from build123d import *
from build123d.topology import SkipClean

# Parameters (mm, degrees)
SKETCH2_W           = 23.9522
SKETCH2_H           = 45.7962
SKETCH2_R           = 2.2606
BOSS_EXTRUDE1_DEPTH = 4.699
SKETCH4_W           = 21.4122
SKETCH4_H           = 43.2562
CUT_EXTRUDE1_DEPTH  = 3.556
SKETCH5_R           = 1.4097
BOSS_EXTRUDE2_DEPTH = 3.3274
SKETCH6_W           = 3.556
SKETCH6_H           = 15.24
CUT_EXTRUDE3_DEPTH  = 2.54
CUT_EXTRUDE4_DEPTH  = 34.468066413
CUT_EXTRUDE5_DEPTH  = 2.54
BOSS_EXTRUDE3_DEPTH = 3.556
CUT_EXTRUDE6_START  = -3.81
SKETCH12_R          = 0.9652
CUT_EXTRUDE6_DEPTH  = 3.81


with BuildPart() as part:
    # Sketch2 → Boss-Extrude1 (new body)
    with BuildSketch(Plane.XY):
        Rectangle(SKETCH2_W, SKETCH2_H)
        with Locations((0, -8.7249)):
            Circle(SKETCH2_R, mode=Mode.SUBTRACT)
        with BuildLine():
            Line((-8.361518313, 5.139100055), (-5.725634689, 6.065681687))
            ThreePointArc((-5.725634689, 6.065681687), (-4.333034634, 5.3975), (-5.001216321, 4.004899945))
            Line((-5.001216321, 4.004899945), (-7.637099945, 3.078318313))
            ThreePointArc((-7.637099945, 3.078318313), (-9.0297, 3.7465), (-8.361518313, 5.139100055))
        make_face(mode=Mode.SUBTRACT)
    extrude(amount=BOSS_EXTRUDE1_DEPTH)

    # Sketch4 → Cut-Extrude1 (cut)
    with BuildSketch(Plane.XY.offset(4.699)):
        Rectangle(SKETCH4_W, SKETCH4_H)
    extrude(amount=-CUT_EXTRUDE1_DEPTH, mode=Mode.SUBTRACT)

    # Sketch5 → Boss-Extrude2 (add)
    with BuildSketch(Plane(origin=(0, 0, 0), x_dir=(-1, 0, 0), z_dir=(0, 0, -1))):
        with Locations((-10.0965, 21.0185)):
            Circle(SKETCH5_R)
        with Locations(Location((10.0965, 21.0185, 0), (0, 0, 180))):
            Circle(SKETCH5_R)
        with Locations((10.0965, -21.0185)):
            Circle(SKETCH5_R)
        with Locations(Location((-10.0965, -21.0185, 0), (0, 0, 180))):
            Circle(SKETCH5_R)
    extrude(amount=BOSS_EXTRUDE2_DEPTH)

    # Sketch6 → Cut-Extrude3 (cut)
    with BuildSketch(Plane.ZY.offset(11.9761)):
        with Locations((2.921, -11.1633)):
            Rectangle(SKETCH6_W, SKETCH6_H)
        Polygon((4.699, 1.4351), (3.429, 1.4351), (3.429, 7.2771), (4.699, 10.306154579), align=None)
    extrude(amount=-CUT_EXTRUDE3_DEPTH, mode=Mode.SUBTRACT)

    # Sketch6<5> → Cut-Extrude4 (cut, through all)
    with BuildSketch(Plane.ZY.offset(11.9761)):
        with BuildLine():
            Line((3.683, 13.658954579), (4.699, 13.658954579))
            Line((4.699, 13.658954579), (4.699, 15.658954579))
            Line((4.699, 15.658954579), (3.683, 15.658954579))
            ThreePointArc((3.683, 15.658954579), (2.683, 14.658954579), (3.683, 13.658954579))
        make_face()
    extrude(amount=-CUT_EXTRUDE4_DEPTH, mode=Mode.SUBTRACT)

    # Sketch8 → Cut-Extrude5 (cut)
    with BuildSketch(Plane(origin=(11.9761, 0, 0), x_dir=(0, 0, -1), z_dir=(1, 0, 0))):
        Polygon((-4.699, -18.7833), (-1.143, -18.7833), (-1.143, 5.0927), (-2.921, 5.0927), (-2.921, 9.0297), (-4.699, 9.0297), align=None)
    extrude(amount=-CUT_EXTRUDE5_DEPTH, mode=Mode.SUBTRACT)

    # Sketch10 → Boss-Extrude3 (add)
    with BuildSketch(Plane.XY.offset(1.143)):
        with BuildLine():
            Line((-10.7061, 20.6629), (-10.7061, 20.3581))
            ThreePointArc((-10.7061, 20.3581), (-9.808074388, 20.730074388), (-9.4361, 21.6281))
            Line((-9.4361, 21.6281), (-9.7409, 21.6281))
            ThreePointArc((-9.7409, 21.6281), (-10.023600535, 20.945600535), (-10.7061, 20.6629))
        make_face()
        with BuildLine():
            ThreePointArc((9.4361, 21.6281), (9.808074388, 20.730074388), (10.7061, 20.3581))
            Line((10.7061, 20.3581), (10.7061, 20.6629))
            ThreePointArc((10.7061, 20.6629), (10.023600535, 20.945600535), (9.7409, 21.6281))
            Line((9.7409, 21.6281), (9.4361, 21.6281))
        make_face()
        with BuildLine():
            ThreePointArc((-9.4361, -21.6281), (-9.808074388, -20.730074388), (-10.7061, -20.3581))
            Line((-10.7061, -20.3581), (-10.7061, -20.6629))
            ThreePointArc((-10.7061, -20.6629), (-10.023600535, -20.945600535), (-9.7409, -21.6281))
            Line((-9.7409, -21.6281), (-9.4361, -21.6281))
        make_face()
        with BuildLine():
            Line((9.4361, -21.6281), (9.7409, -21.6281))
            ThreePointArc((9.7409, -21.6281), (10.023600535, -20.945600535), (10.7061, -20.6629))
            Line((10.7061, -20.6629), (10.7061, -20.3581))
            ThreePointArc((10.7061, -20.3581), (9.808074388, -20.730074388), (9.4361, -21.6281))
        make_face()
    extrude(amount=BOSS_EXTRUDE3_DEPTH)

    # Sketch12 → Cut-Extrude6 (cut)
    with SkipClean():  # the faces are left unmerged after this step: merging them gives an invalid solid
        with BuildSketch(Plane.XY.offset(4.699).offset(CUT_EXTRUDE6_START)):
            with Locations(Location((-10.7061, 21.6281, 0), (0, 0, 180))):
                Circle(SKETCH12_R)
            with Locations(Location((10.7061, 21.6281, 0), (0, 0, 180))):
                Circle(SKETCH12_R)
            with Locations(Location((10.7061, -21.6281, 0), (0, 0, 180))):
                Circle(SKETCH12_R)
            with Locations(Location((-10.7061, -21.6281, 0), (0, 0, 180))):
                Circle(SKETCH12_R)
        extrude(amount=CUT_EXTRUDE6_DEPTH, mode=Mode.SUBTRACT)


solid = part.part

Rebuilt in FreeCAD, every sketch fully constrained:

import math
import FreeCAD as App
import Part
import Sketcher

V = App.Vector
Q = App.Units.Quantity

doc = App.newDocument("Part")
body = doc.addObject("PartDesign::Body", "Body")

sketch1 = doc.addObject("Sketcher::SketchObject", "Sketch")
body.addObject(sketch1)
sketch1.AttachmentSupport = (doc.XY_Plane, [""])
sketch1.MapMode = "FlatFace"
sketch1.addGeometry(Part.LineSegment(V(-12, 22.9, 0), V(-12, -22.9, 0)), False)
sketch1.addGeometry(Part.LineSegment(V(-12, -22.9, 0), V(12, -22.9, 0)), False)
sketch1.addGeometry(Part.LineSegment(V(12, -22.9, 0), V(12, 22.9, 0)), False)
sketch1.addGeometry(Part.LineSegment(V(12, 22.9, 0), V(-12, 22.9, 0)), False)
sketch1.addGeometry(Part.Circle(V(0, -8.7, 0), V(0, 0, 1), 2.3), False)
sketch1.addGeometry(Part.ArcOfCircle(Part.Circle(V(-8, 4.1, 0), V(0, 0, 1), 1.1), math.radians(109), math.radians(289)), False)
sketch1.addGeometry(Part.LineSegment(V(-8.4, 5.1, 0), V(-5.7, 6.1, 0)), False)
sketch1.addGeometry(Part.ArcOfCircle(Part.Circle(V(-5.4, 5, 0), V(0, 0, 1), 1.1), math.radians(-71), math.radians(109)), False)
sketch1.addGeometry(Part.LineSegment(V(-5, 4, 0), V(-7.6, 3.1, 0)), False)
sketch1.addConstraint(Sketcher.Constraint("Coincident", 0, 2, 1, 1))
sketch1.addConstraint(Sketcher.Constraint("Coincident", 1, 2, 2, 1))
sketch1.addConstraint(Sketcher.Constraint("Coincident", 2, 2, 3, 1))
sketch1.addConstraint(Sketcher.Constraint("Coincident", 3, 2, 0, 1))
sketch1.addConstraint(Sketcher.Constraint("Tangent", 5, 1, 6, 1))
sketch1.addConstraint(Sketcher.Constraint("Tangent", 6, 2, 7, 2))
sketch1.addConstraint(Sketcher.Constraint("Tangent", 7, 1, 8, 1))
sketch1.addConstraint(Sketcher.Constraint("Tangent", 8, 2, 5, 2))
sketch1.addConstraint(Sketcher.Constraint("Vertical", 0))
sketch1.addConstraint(Sketcher.Constraint("Horizontal", 1))
sketch1.addConstraint(Sketcher.Constraint("Vertical", 2))
sketch1.addConstraint(Sketcher.Constraint("Horizontal", 3))
sketch1.addConstraint(Sketcher.Constraint("Equal", 5, 7))
sketch1.addConstraint(Sketcher.Constraint("Symmetric", 0, 2, 2, 2, -1, 1))
sketch1.addConstraint(Sketcher.Constraint("PointOnObject", 4, 3, -2))
sketch1.addConstraint(Sketcher.Constraint("Diameter", 4, Q("0.178 in")))
sketch1.addConstraint(Sketcher.Constraint("Radius", 5, Q("0.043 in")))
sketch1.addConstraint(Sketcher.Constraint("Distance", 6, Q("0.11 in")))
sketch1.addConstraint(Sketcher.Constraint("DistanceX", 1, 1, 1, 2, Q("0.943 in")))
sketch1.addConstraint(Sketcher.Constraint("DistanceY", 0, 2, 0, 1, Q("1.803 in")))
sketch1.addConstraint(Sketcher.Constraint("DistanceY", 0, 2, 4, 3, Q("0.558 in")))
sketch1.addConstraint(Sketcher.Constraint("DistanceY", -1, 1, 5, 1, Q("5.1391 mm")))
sketch1.addConstraint(Sketcher.Constraint("DistanceY", -1, 1, 7, 1, Q("4.0049 mm")))
sketch1.addConstraint(Sketcher.Constraint("DistanceX", 8, 2, -1, 1, Q("7.6371 mm")))
pad1 = doc.addObject("PartDesign::Pad", "Pad")
body.addObject(pad1)
pad1.Profile = sketch1
pad1.Length = Q("0.185 in")

sketch2 = doc.addObject("Sketcher::SketchObject", "Sketch001")
body.addObject(sketch2)
sketch2.AttachmentSupport = (doc.XY_Plane, [""])
sketch2.MapMode = "FlatFace"
sketch2.AttachmentOffset = App.Placement(V(0, 0, 0.185 * 25.4), App.Rotation())
sketch2.addGeometry(Part.LineSegment(V(-11, 22, 0), V(-11, -22, 0)), False)
sketch2.addGeometry(Part.LineSegment(V(-11, -22, 0), V(11, -22, 0)), False)
sketch2.addGeometry(Part.LineSegment(V(11, -22, 0), V(11, 22, 0)), False)
sketch2.addGeometry(Part.LineSegment(V(11, 22, 0), V(-11, 22, 0)), False)
sketch2.addConstraint(Sketcher.Constraint("Coincident", 0, 2, 1, 1))
sketch2.addConstraint(Sketcher.Constraint("Coincident", 1, 2, 2, 1))
sketch2.addConstraint(Sketcher.Constraint("Coincident", 2, 2, 3, 1))
sketch2.addConstraint(Sketcher.Constraint("Coincident", 3, 2, 0, 1))
sketch2.addConstraint(Sketcher.Constraint("Vertical", 0))
sketch2.addConstraint(Sketcher.Constraint("Horizontal", 1))
sketch2.addConstraint(Sketcher.Constraint("Vertical", 2))
sketch2.addConstraint(Sketcher.Constraint("Horizontal", 3))
sketch2.addConstraint(Sketcher.Constraint("Symmetric", 0, 2, 2, 2, -1, 1))
sketch2.addConstraint(Sketcher.Constraint("DistanceX", 1, 1, 1, 2, Q("0.843 in")))
sketch2.addConstraint(Sketcher.Constraint("DistanceY", 0, 2, 0, 1, Q("1.703 in")))
pocket1 = doc.addObject("PartDesign::Pocket", "Pocket")
body.addObject(pocket1)
pocket1.Profile = sketch2
pocket1.Length = Q("0.14 in")

sketch3 = doc.addObject("Sketcher::SketchObject", "Sketch002")
body.addObject(sketch3)
sketch3.AttachmentSupport = (doc.XY_Plane, [""])
sketch3.MapMode = "FlatFace"
sketch3.addGeometry(Part.Circle(V(10.1, 21, 0), V(0, 0, 1), 1.4), False)
sketch3.addGeometry(Part.Circle(V(-10.1, 21, 0), V(0, 0, 1), 1.4), False)
sketch3.addGeometry(Part.Circle(V(-10.1, -21, 0), V(0, 0, 1), 1.4), False)
sketch3.addGeometry(Part.Circle(V(10.1, -21, 0), V(0, 0, 1), 1.4), False)
sketch3.addConstraint(Sketcher.Constraint("Equal", 0, 1))
sketch3.addConstraint(Sketcher.Constraint("Equal", 1, 2))
sketch3.addConstraint(Sketcher.Constraint("Equal", 2, 3))
sketch3.addConstraint(Sketcher.Constraint("Symmetric", 0, 3, 2, 3, -1, 1))
sketch3.addConstraint(Sketcher.Constraint("Symmetric", 1, 3, 3, 3, -1, 1))
sketch3.addConstraint(Sketcher.Constraint("Symmetric", 0, 3, 1, 3, -2))
sketch3.addConstraint(Sketcher.Constraint("Diameter", 0, Q("0.111 in")))
sketch3.addConstraint(Sketcher.Constraint("DistanceX", 1, 3, 0, 3, Q("0.795 in")))
sketch3.addConstraint(Sketcher.Constraint("DistanceY", 2, 3, 1, 3, Q("1.655 in")))
pad2 = doc.addObject("PartDesign::Pad", "Pad001")
body.addObject(pad2)
pad2.Profile = sketch3
pad2.Length = Q("0.131 in")
pad2.Reversed = True

sketch4 = doc.addObject("Sketcher::SketchObject", "Sketch003")
body.addObject(sketch4)
sketch4.AttachmentSupport = (doc.YZ_Plane, [""])
sketch4.MapMode = "FlatFace"
sketch4.AttachmentOffset = App.Placement(V(0, 0, -0.4715 * 25.4), App.Rotation())
sketch4.addGeometry(Part.LineSegment(V(-3.5, 1.1, 0), V(-18.8, 1.1, 0)), False)
sketch4.addGeometry(Part.LineSegment(V(-18.8, 1.1, 0), V(-18.8, 4.7, 0)), False)
sketch4.addGeometry(Part.LineSegment(V(-18.8, 4.7, 0), V(-3.5, 4.7, 0)), False)
sketch4.addGeometry(Part.LineSegment(V(-3.5, 4.7, 0), V(-3.5, 1.1, 0)), False)
sketch4.addGeometry(Part.LineSegment(V(1.4, 3.4, 0), V(1.4, 4.7, 0)), False)
sketch4.addGeometry(Part.LineSegment(V(1.4, 4.7, 0), V(10.3, 4.7, 0)), False)
sketch4.addGeometry(Part.LineSegment(V(10.3, 4.7, 0), V(7.3, 3.4, 0)), False)
sketch4.addGeometry(Part.LineSegment(V(7.3, 3.4, 0), V(1.4, 3.4, 0)), False)
sketch4.addConstraint(Sketcher.Constraint("Coincident", 0, 2, 1, 1))
sketch4.addConstraint(Sketcher.Constraint("Coincident", 1, 2, 2, 1))
sketch4.addConstraint(Sketcher.Constraint("Coincident", 2, 2, 3, 1))
sketch4.addConstraint(Sketcher.Constraint("Coincident", 3, 2, 0, 1))
sketch4.addConstraint(Sketcher.Constraint("Coincident", 4, 2, 5, 1))
sketch4.addConstraint(Sketcher.Constraint("Coincident", 5, 2, 6, 1))
sketch4.addConstraint(Sketcher.Constraint("Coincident", 6, 2, 7, 1))
sketch4.addConstraint(Sketcher.Constraint("Coincident", 7, 2, 4, 1))
sketch4.addConstraint(Sketcher.Constraint("Horizontal", 0))
sketch4.addConstraint(Sketcher.Constraint("Vertical", 1))
sketch4.addConstraint(Sketcher.Constraint("Horizontal", 2))
sketch4.addConstraint(Sketcher.Constraint("Vertical", 3))
sketch4.addConstraint(Sketcher.Constraint("Vertical", 4))
sketch4.addConstraint(Sketcher.Constraint("Horizontal", 5))
sketch4.addConstraint(Sketcher.Constraint("Horizontal", 7))
sketch4.addConstraint(Sketcher.Constraint("Horizontal", 2, 2, 4, 2))
sketch4.addConstraint(Sketcher.Constraint("DistanceX", 0, 2, 0, 1, Q("0.6 in")))
sketch4.addConstraint(Sketcher.Constraint("DistanceX", 7, 2, 7, 1, Q("0.23 in")))
sketch4.addConstraint(Sketcher.Constraint("DistanceY", 1, 1, 1, 2, Q("0.14 in")))
sketch4.addConstraint(Sketcher.Constraint("DistanceY", 4, 1, 4, 2, Q("0.05 in")))
sketch4.addConstraint(Sketcher.Constraint("DistanceY", -1, 1, 0, 2, Q("0.045 in")))
sketch4.addConstraint(Sketcher.Constraint("DistanceX", 2, 2, 4, 2, Q("0.196 in")))
sketch4.addConstraint(Sketcher.Constraint("DistanceX", 0, 2, -1, 1, Q("0.7395 in")))
sketch4.addConstraint(Sketcher.Constraint("Distance", 6, Q("3.28452 mm")))
pocket2 = doc.addObject("PartDesign::Pocket", "Pocket001")
body.addObject(pocket2)
pocket2.Profile = sketch4
pocket2.Length = Q("0.1 in")
pocket2.Reversed = True

sketch5 = doc.addObject("Sketcher::SketchObject", "Sketch004")
body.addObject(sketch5)
sketch5.AttachmentSupport = (doc.YZ_Plane, [""])
sketch5.MapMode = "FlatFace"
sketch5.AttachmentOffset = App.Placement(V(0, 0, -0.4715 * 25.4), App.Rotation())
sketch5.addGeometry(Part.LineSegment(V(13.7, 3.7, 0), V(13.7, 4.7, 0)), False)
sketch5.addGeometry(Part.LineSegment(V(13.7, 4.7, 0), V(15.7, 4.7, 0)), False)
sketch5.addGeometry(Part.LineSegment(V(15.7, 4.7, 0), V(15.7, 3.7, 0)), False)
sketch5.addGeometry(Part.ArcOfCircle(Part.Circle(V(14.7, 3.7, 0), V(0, 0, 1), 1), math.radians(180), math.radians(360)), False)
sketch5.addConstraint(Sketcher.Constraint("Coincident", 0, 2, 1, 1))
sketch5.addConstraint(Sketcher.Constraint("Coincident", 1, 2, 2, 1))
sketch5.addConstraint(Sketcher.Constraint("Tangent", 2, 2, 3, 2))
sketch5.addConstraint(Sketcher.Constraint("Tangent", 3, 1, 0, 1))
sketch5.addConstraint(Sketcher.Constraint("Vertical", 0))
sketch5.addConstraint(Sketcher.Constraint("Horizontal", 1))
sketch5.addConstraint(Sketcher.Constraint("Vertical", 2))
sketch5.addConstraint(Sketcher.Constraint("DistanceY", 0, 1, 0, 2, Q("0.04 in")))
sketch5.addConstraint(Sketcher.Constraint("Radius", 3, Q("1 mm")))
sketch5.addConstraint(Sketcher.Constraint("DistanceY", -1, 1, 3, 3, Q("0.145 in")))
sketch5.addConstraint(Sketcher.Constraint("DistanceX", -1, 1, 3, 3, Q("14.658955 mm")))
pocket3 = doc.addObject("PartDesign::Pocket", "Pocket002")
body.addObject(pocket3)
pocket3.Profile = sketch5
pocket3.Type = "ThroughAll"
pocket3.Reversed = True

sketch6 = doc.addObject("Sketcher::SketchObject", "Sketch005")
body.addObject(sketch6)
sketch6.AttachmentSupport = (doc.YZ_Plane, [""])
sketch6.MapMode = "FlatFace"
sketch6.AttachmentOffset = App.Placement(V(0, 0, 0.4715 * 25.4), App.Rotation())
sketch6.addGeometry(Part.LineSegment(V(-18.8, 4.7, 0), V(-18.8, 1.1, 0)), False)
sketch6.addGeometry(Part.LineSegment(V(-18.8, 1.1, 0), V(5.1, 1.1, 0)), False)
sketch6.addGeometry(Part.LineSegment(V(5.1, 1.1, 0), V(5.1, 2.9, 0)), False)
sketch6.addGeometry(Part.LineSegment(V(5.1, 2.9, 0), V(9, 2.9, 0)), False)
sketch6.addGeometry(Part.LineSegment(V(9, 2.9, 0), V(9, 4.7, 0)), False)
sketch6.addGeometry(Part.LineSegment(V(9, 4.7, 0), V(-18.8, 4.7, 0)), False)
sketch6.addConstraint(Sketcher.Constraint("Coincident", 0, 2, 1, 1))
sketch6.addConstraint(Sketcher.Constraint("Coincident", 1, 2, 2, 1))
sketch6.addConstraint(Sketcher.Constraint("Coincident", 2, 2, 3, 1))
sketch6.addConstraint(Sketcher.Constraint("Coincident", 3, 2, 4, 1))
sketch6.addConstraint(Sketcher.Constraint("Coincident", 4, 2, 5, 1))
sketch6.addConstraint(Sketcher.Constraint("Coincident", 5, 2, 0, 1))
sketch6.addConstraint(Sketcher.Constraint("Vertical", 0))
sketch6.addConstraint(Sketcher.Constraint("Horizontal", 1))
sketch6.addConstraint(Sketcher.Constraint("Vertical", 2))
sketch6.addConstraint(Sketcher.Constraint("Horizontal", 3))
sketch6.addConstraint(Sketcher.Constraint("Vertical", 4))
sketch6.addConstraint(Sketcher.Constraint("Horizontal", 5))
sketch6.addConstraint(Sketcher.Constraint("Equal", 2, 4))
sketch6.addConstraint(Sketcher.Constraint("DistanceX", 1, 1, 1, 2, Q("0.94 in")))
sketch6.addConstraint(Sketcher.Constraint("DistanceY", 0, 2, 0, 1, Q("0.14 in")))
sketch6.addConstraint(Sketcher.Constraint("DistanceX", 3, 1, 3, 2, Q("0.155 in")))
sketch6.addConstraint(Sketcher.Constraint("DistanceY", -1, 1, 0, 2, Q("0.045 in")))
sketch6.addConstraint(Sketcher.Constraint("DistanceX", 0, 2, -1, 1, Q("0.7395 in")))
pocket4 = doc.addObject("PartDesign::Pocket", "Pocket003")
body.addObject(pocket4)
pocket4.Profile = sketch6
pocket4.Length = Q("0.1 in")

sketch7 = doc.addObject("Sketcher::SketchObject", "Sketch006")
body.addObject(sketch7)
sketch7.AttachmentSupport = (doc.XY_Plane, [""])
sketch7.MapMode = "FlatFace"
sketch7.AttachmentOffset = App.Placement(V(0, 0, 0.045 * 25.4), App.Rotation())
sketch7.addGeometry(Part.LineSegment(V(-10.71, 20.66, 0), V(-10.71, 20.36, 0)), False)
sketch7.addGeometry(Part.ArcOfCircle(Part.Circle(V(-10.71, 21.63, 0), V(0, 0, 1), 1.27), math.radians(-90), math.radians(0)), False)
sketch7.addGeometry(Part.LineSegment(V(-9.44, 21.63, 0), V(-9.74, 21.63, 0)), False)
sketch7.addGeometry(Part.ArcOfCircle(Part.Circle(V(-10.71, 21.63, 0), V(0, 0, 1), 0.97), math.radians(-90), math.radians(0)), False)
sketch7.addGeometry(Part.ArcOfCircle(Part.Circle(V(10.71, 21.63, 0), V(0, 0, 1), 1.27), math.radians(180), math.radians(270)), False)
sketch7.addGeometry(Part.LineSegment(V(10.71, 20.36, 0), V(10.71, 20.66, 0)), False)
sketch7.addGeometry(Part.ArcOfCircle(Part.Circle(V(10.71, 21.63, 0), V(0, 0, 1), 0.97), math.radians(-180), math.radians(-90)), False)
sketch7.addGeometry(Part.LineSegment(V(9.74, 21.63, 0), V(9.44, 21.63, 0)), False)
sketch7.addGeometry(Part.ArcOfCircle(Part.Circle(V(-10.71, -21.63, 0), V(0, 0, 1), 1.27), math.radians(0), math.radians(90)), False)
sketch7.addGeometry(Part.LineSegment(V(-10.71, -20.36, 0), V(-10.71, -20.66, 0)), False)
sketch7.addGeometry(Part.ArcOfCircle(Part.Circle(V(-10.71, -21.63, 0), V(0, 0, 1), 0.97), math.radians(0), math.radians(90)), False)
sketch7.addGeometry(Part.LineSegment(V(-9.74, -21.63, 0), V(-9.44, -21.63, 0)), False)
sketch7.addGeometry(Part.LineSegment(V(9.44, -21.63, 0), V(9.74, -21.63, 0)), False)
sketch7.addGeometry(Part.ArcOfCircle(Part.Circle(V(10.71, -21.63, 0), V(0, 0, 1), 0.97), math.radians(90), math.radians(180)), False)
sketch7.addGeometry(Part.LineSegment(V(10.71, -20.66, 0), V(10.71, -20.36, 0)), False)
sketch7.addGeometry(Part.ArcOfCircle(Part.Circle(V(10.71, -21.63, 0), V(0, 0, 1), 1.27), math.radians(90), math.radians(180)), False)
sketch7.addConstraint(Sketcher.Constraint("Coincident", 0, 2, 1, 1))
sketch7.addConstraint(Sketcher.Constraint("Coincident", 1, 2, 2, 1))
sketch7.addConstraint(Sketcher.Constraint("Coincident", 2, 2, 3, 2))
sketch7.addConstraint(Sketcher.Constraint("Coincident", 3, 1, 0, 1))
sketch7.addConstraint(Sketcher.Constraint("Coincident", 4, 2, 5, 1))
sketch7.addConstraint(Sketcher.Constraint("Coincident", 5, 2, 6, 2))
sketch7.addConstraint(Sketcher.Constraint("Coincident", 6, 1, 7, 1))
sketch7.addConstraint(Sketcher.Constraint("Coincident", 7, 2, 4, 1))
sketch7.addConstraint(Sketcher.Constraint("Coincident", 8, 2, 9, 1))
sketch7.addConstraint(Sketcher.Constraint("Coincident", 9, 2, 10, 2))
sketch7.addConstraint(Sketcher.Constraint("Coincident", 10, 1, 11, 1))
sketch7.addConstraint(Sketcher.Constraint("Coincident", 11, 2, 8, 1))
sketch7.addConstraint(Sketcher.Constraint("Coincident", 12, 2, 13, 2))
sketch7.addConstraint(Sketcher.Constraint("Coincident", 13, 1, 14, 1))
sketch7.addConstraint(Sketcher.Constraint("Coincident", 14, 2, 15, 1))
sketch7.addConstraint(Sketcher.Constraint("Coincident", 15, 2, 12, 1))
sketch7.addConstraint(Sketcher.Constraint("Vertical", 0))
sketch7.addConstraint(Sketcher.Constraint("Horizontal", 2))
sketch7.addConstraint(Sketcher.Constraint("Vertical", 5))
sketch7.addConstraint(Sketcher.Constraint("Horizontal", 7))
sketch7.addConstraint(Sketcher.Constraint("Vertical", 9))
sketch7.addConstraint(Sketcher.Constraint("Horizontal", 11))
sketch7.addConstraint(Sketcher.Constraint("Horizontal", 12))
sketch7.addConstraint(Sketcher.Constraint("Vertical", 14))
sketch7.addConstraint(Sketcher.Constraint("Coincident", 3, 3, 1, 3))
sketch7.addConstraint(Sketcher.Constraint("Coincident", 6, 3, 4, 3))
sketch7.addConstraint(Sketcher.Constraint("Coincident", 10, 3, 8, 3))
sketch7.addConstraint(Sketcher.Constraint("Coincident", 15, 3, 13, 3))
sketch7.addConstraint(Sketcher.Constraint("Equal", 1, 4))
sketch7.addConstraint(Sketcher.Constraint("Equal", 3, 6))
sketch7.addConstraint(Sketcher.Constraint("Equal", 4, 8))
sketch7.addConstraint(Sketcher.Constraint("Equal", 6, 10))
sketch7.addConstraint(Sketcher.Constraint("Equal", 10, 13))
sketch7.addConstraint(Sketcher.Constraint("Equal", 8, 15))
sketch7.addConstraint(Sketcher.Constraint("Symmetric", 4, 3, 8, 3, -1, 1))
sketch7.addConstraint(Sketcher.Constraint("Symmetric", 1, 3, 13, 3, -1, 1))
sketch7.addConstraint(Sketcher.Constraint("Symmetric", 1, 3, 4, 3, -2))
sketch7.addConstraint(Sketcher.Constraint("Horizontal", 6, 3, 1, 2))
sketch7.addConstraint(Sketcher.Constraint("Horizontal", 2, 2, 6, 1))
sketch7.addConstraint(Sketcher.Constraint("Horizontal", 15, 3, 10, 1))
sketch7.addConstraint(Sketcher.Constraint("Horizontal", 11, 2, 12, 2))
sketch7.addConstraint(Sketcher.Constraint("Vertical", 10, 3, 0, 2))
sketch7.addConstraint(Sketcher.Constraint("Vertical", 15, 3, 4, 2))
sketch7.addConstraint(Sketcher.Constraint("Vertical", 3, 1, 8, 2))
sketch7.addConstraint(Sketcher.Constraint("Vertical", 5, 2, 13, 1))
sketch7.addConstraint(Sketcher.Constraint("Radius", 1, Q("0.05 in")))
sketch7.addConstraint(Sketcher.Constraint("Radius", 3, Q("0.038 in")))
sketch7.addConstraint(Sketcher.Constraint("DistanceX", 1, 3, 4, 3, Q("0.843 in")))
sketch7.addConstraint(Sketcher.Constraint("DistanceY", 8, 3, 1, 3, Q("1.703 in")))
pad3 = doc.addObject("PartDesign::Pad", "Pad002")
body.addObject(pad3)
pad3.Profile = sketch7
pad3.Length = Q("0.14 in")

sketch8 = doc.addObject("Sketcher::SketchObject", "Sketch007")
body.addObject(sketch8)
sketch8.AttachmentSupport = (doc.XY_Plane, [""])
sketch8.MapMode = "FlatFace"
sketch8.AttachmentOffset = App.Placement(V(0, 0, 0.035 * 25.4), App.Rotation())
sketch8.addGeometry(Part.Circle(V(-10.7, 21.6, 0), V(0, 0, 1), 1), False)
sketch8.addGeometry(Part.Circle(V(10.7, 21.6, 0), V(0, 0, 1), 1), False)
sketch8.addGeometry(Part.Circle(V(10.7, -21.6, 0), V(0, 0, 1), 1), False)
sketch8.addGeometry(Part.Circle(V(-10.7, -21.6, 0), V(0, 0, 1), 1), False)
sketch8.addConstraint(Sketcher.Constraint("Equal", 0, 1))
sketch8.addConstraint(Sketcher.Constraint("Equal", 1, 2))
sketch8.addConstraint(Sketcher.Constraint("Equal", 2, 3))
sketch8.addConstraint(Sketcher.Constraint("Symmetric", 0, 3, 2, 3, -1, 1))
sketch8.addConstraint(Sketcher.Constraint("Symmetric", 1, 3, 3, 3, -1, 1))
sketch8.addConstraint(Sketcher.Constraint("Symmetric", 0, 3, 1, 3, -2))
sketch8.addConstraint(Sketcher.Constraint("Diameter", 0, Q("0.076 in")))
sketch8.addConstraint(Sketcher.Constraint("DistanceX", 0, 3, 1, 3, Q("0.843 in")))
sketch8.addConstraint(Sketcher.Constraint("DistanceY", 2, 3, 1, 3, Q("1.703 in")))
pocket5 = doc.addObject("PartDesign::Pocket", "Pocket004")
body.addObject(pocket5)
pocket5.Profile = sketch8
pocket5.Length = Q("0.15 in")
pocket5.Reversed = True

doc.recompute()
